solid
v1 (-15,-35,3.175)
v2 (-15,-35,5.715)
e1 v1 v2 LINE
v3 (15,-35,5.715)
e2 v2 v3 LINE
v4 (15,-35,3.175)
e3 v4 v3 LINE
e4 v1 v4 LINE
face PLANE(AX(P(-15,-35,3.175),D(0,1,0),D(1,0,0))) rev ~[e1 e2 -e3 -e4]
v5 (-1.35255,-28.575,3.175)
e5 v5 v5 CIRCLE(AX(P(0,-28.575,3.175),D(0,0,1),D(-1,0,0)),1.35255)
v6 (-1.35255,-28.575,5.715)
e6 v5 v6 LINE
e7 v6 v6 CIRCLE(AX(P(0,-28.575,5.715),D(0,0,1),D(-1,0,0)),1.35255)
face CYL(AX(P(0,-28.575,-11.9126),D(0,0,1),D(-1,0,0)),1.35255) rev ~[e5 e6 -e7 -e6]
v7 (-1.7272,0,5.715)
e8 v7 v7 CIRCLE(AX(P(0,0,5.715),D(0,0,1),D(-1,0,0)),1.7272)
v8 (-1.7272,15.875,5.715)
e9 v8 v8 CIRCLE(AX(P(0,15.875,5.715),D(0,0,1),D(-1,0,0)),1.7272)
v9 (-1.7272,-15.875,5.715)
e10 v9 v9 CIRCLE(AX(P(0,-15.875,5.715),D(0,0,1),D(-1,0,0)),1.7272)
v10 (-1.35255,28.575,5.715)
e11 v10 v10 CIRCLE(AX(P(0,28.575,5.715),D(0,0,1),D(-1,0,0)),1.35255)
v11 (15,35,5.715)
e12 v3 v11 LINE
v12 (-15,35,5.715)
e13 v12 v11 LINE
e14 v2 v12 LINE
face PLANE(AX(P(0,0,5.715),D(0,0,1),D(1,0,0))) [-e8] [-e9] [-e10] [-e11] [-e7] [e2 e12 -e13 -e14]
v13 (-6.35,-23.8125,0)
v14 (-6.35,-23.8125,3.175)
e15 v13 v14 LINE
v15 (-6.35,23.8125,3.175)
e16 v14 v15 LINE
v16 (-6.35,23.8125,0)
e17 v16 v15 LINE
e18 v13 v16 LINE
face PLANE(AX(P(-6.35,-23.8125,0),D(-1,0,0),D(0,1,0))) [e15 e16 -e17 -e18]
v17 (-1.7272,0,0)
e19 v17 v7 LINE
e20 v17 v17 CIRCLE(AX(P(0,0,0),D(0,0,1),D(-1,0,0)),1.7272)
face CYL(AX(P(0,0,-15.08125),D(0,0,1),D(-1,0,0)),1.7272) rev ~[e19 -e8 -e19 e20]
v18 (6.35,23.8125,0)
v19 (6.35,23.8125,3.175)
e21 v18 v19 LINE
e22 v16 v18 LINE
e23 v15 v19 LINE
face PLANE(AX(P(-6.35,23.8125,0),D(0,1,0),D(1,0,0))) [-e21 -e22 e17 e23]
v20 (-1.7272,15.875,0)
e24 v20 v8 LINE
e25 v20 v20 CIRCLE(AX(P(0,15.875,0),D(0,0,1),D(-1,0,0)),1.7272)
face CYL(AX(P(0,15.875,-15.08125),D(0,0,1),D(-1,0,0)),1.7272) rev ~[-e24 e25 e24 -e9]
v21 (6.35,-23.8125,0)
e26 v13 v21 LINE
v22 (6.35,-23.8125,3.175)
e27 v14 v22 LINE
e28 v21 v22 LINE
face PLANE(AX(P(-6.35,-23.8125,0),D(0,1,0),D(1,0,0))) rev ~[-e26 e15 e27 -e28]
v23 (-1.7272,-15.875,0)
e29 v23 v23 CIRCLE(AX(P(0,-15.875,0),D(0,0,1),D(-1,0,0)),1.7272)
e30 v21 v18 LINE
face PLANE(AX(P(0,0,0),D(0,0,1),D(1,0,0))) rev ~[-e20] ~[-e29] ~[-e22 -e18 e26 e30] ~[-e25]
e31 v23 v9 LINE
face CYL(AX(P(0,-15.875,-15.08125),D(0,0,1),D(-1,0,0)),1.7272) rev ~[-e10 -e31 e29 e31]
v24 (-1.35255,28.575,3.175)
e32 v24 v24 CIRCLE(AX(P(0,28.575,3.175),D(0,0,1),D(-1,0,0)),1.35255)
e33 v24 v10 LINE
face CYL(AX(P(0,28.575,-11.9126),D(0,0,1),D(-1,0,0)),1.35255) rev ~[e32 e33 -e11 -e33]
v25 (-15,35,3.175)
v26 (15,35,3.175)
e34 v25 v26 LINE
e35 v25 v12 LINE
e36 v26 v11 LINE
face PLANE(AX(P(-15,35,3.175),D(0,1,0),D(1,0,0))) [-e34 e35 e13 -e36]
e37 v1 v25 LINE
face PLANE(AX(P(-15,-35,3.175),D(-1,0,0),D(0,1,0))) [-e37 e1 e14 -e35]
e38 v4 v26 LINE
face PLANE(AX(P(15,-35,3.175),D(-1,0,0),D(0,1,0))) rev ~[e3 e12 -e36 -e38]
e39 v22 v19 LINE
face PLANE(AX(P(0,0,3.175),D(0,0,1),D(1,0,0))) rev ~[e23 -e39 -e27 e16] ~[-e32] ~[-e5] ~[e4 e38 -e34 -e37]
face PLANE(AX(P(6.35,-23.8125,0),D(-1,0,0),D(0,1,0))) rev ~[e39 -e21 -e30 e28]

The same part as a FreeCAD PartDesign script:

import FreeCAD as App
import Part
import Sketcher
Q = App.Units.Quantity


def add_polygon(sketch, points):
    """Adds a closed chain of lines whose ends are joined by coincident constraints."""
    first, n = sketch.GeometryCount, len(points)
    for a, b in zip(points, points[1:] + points[:1]):
        sketch.addGeometry(Part.LineSegment(App.Vector(*a, 0), App.Vector(*b, 0)), False)
    for i in range(n):
        sketch.addConstraint(Sketcher.Constraint("Coincident", first + i, 2, first + (i + 1) % n, 1))

doc = App.newDocument("Part")
params = doc.addObject("Spreadsheet::Sheet", "Params")
for row, (alias, value) in enumerate([
    ("sketch1_width", "0.5 in"),
    ("sketch1_height", "1.875 in"),
    ("pad1_length", "0.125 in"),
    ("pad2_length", "0.1 in"),
    ("sketch3_diameter", "0.136 in"),
    ("hole_diameter", "0.136 in"),
    ("hole_depth", "0.59375 in"),
    ("hole2_diameter", "0.1065 in"),
    ("hole2_depth", "0.594 in"),
], start=1):
    params.set(f"A{row}", alias)
    params.set(f"B{row}", "=" + value)
    params.setAlias(f"B{row}", alias)

body = doc.addObject("PartDesign::Body", "Body")

sketch1 = body.newObject("Sketcher::SketchObject", "Sketch")
sketch1.AttachmentSupport = (doc.getObject("XY_Plane"), [""])
sketch1.MapMode = "FlatFace"
add_polygon(sketch1, [(-6.35, 23.8125), (-6.35, -23.8125), (6.35, -23.8125), (6.35, 23.8125)])
sketch1.addConstraint([
    Sketcher.Constraint("Vertical", 0),
    Sketcher.Constraint("Horizontal", 1),
    Sketcher.Constraint("Vertical", 2),
    Sketcher.Constraint("Horizontal", 3),
    Sketcher.Constraint("Symmetric", 0, 2, 2, 2, -1, 1),
    Sketcher.Constraint("DistanceX", 1, 1, 1, 2, Q("0.5 in")),
    Sketcher.Constraint("DistanceY", 0, 2, 0, 1, Q("1.875 in")),
])
sketch1.setExpression("Constraints[9]", "Params.sketch1_width")
sketch1.setExpression("Constraints[10]", "Params.sketch1_height")
pad1 = body.newObject("PartDesign::Pad", "Pad")
pad1.Profile = sketch1
pad1.setExpression("Length", "Params.pad1_length")

sketch2 = body.newObject("Sketcher::SketchObject", "Sketch001")
sketch2.AttachmentSupport = (doc.getObject("XY_Plane"), [""])
sketch2.MapMode = "FlatFace"
sketch2.AttachmentOffset = App.Placement(App.Vector(0, 0, 0.125 * 25.4), App.Rotation())
add_polygon(sketch2, [(-15, 35), (-15, -35), (15, -35), (15, 35)])
sketch2.addConstraint([
    Sketcher.Constraint("Vertical", 0),
    Sketcher.Constraint("Horizontal", 1),
    Sketcher.Constraint("Vertical", 2),
    Sketcher.Constraint("Horizontal", 3),
    Sketcher.Constraint("Symmetric", 0, 2, 2, 2, -1, 1),
    Sketcher.Constraint("DistanceX", 1, 1, 1, 2, 30.0),
    Sketcher.Constraint("DistanceY", 0, 2, 0, 1, 70.0),
])
pad2 = body.newObject("PartDesign::Pad", "Pad001")
pad2.Profile = sketch2
pad2.setExpression("Length", "Params.pad2_length")

sketch3 = body.newObject("Sketcher::SketchObject", "Sketch002")
sketch3.AttachmentSupport = (doc.getObject("XY_Plane"), [""])
sketch3.MapMode = "FlatFace"
sketch3.addGeometry([
    Part.Circle(App.Vector(0, -15.875, 0), App.Vector(0, 0, 1), 1.7272),
    Part.Circle(App.Vector(0, 0, 0), App.Vector(0, 0, 1), 1.7272),
    Part.Circle(App.Vector(0, 15.875, 0), App.Vector(0, 0, 1), 1.7272),
], False)
sketch3.addConstraint([
    Sketcher.Constraint("Coincident", 1, 3, -1, 1),
    Sketcher.Constraint("Equal", 0, 1),
    Sketcher.Constraint("Equal", 1, 2),
    Sketcher.Constraint("Symmetric", 0, 3, 2, 3, -1, 1),
    Sketcher.Constraint("PointOnObject", 0, 3, -2),
    Sketcher.Constraint("Diameter", 0, Q("0.136 in")),
    Sketcher.Constraint("DistanceY", 0, 3, 2, 3, Q("1.25 in")),
])
sketch3.setExpression("Constraints[5]", "Params.sketch3_diameter")
doc.recompute()
hole = body.newObject("PartDesign::Hole", "Hole")
hole.Profile = sketch3
hole.ThreadType = "None"
hole.setExpression("Diameter", "Params.hole_diameter")
hole.DepthType = "Dimension"
hole.setExpression("Depth", "Params.hole_depth")
hole.DrillPoint = "Angled"
hole.DrillPointAngle = 118
hole.Reversed = True

sketch4 = body.newObject("Sketcher::SketchObject", "Sketch003")
sketch4.AttachmentSupport = (doc.getObject("XY_Plane"), [""])
sketch4.MapMode = "FlatFace"
sketch4.AttachmentOffset = App.Placement(App.Vector(0, 0, 0.125 * 25.4), App.Rotation())
sketch4.addGeometry([
    Part.Circle(App.Vector(0, -28.575, 0), App.Vector(0, 0, 1), 1.35255),
    Part.Circle(App.Vector(0, 28.575, 0), App.Vector(0, 0, 1), 1.35255),
], False)
sketch4.addConstraint([
    Sketcher.Constraint("Equal", 0, 1),
    Sketcher.Constraint("Symmetric", 0, 3, 1, 3, -1, 1),
    Sketcher.Constraint("PointOnObject", 0, 3, -2),
    Sketcher.Constraint("Diameter", 0, Q("0.1065 in")),
    Sketcher.Constraint("DistanceY", 0, 3, 1, 3, Q("2.25 in")),
])
doc.recompute()
hole2 = body.newObject("PartDesign::Hole", "Hole001")
hole2.Profile = sketch4
hole2.ThreadType = "None"
hole2.setExpression("Diameter", "Params.hole2_diameter")
hole2.DepthType = "Dimension"
hole2.setExpression("Depth", "Params.hole2_depth")
hole2.DrillPoint = "Angled"
hole2.DrillPointAngle = 118
hole2.Reversed = True

doc.recompute()
